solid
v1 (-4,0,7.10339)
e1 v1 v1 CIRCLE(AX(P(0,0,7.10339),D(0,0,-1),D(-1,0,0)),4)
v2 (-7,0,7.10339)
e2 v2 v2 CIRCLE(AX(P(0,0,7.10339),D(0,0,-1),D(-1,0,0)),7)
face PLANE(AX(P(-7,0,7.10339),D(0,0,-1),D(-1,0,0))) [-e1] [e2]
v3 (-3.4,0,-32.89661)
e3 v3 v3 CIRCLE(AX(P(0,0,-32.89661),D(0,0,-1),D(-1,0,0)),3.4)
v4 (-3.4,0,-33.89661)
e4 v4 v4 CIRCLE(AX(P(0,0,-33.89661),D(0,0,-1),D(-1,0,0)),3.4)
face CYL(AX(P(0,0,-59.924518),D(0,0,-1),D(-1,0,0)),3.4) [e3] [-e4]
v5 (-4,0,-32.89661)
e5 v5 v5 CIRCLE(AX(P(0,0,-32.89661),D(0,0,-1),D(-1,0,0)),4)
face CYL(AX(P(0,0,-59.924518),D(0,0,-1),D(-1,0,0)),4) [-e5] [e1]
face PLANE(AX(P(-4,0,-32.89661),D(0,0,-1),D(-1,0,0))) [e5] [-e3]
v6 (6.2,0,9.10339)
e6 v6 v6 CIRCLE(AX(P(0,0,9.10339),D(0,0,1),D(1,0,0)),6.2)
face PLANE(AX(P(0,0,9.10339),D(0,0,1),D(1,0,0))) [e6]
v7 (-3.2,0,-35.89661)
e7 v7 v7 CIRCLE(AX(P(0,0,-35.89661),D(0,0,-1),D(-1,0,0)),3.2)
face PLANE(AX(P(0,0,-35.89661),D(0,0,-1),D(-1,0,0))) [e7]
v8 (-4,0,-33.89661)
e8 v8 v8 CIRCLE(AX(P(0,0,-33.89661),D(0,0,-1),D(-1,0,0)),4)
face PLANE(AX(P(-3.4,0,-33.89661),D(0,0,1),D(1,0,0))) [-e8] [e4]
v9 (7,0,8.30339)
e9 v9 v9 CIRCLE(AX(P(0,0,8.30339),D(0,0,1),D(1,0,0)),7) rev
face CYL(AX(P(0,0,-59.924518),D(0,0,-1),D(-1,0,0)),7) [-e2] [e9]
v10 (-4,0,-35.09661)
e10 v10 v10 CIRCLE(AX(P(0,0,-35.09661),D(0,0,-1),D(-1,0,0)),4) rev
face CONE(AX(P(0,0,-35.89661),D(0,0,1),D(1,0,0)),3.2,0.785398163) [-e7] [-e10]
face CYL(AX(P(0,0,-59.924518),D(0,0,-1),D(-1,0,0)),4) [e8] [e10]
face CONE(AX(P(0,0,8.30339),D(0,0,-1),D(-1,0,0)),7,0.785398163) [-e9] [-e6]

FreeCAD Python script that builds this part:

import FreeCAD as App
import Part
import Sketcher

V = App.Vector


def edges_at(feature, points):
    """Names of the edges that pass closest to the given points."""
    edges = feature.Shape.Edges
    near = lambda p: min(range(len(edges)), key=lambda i: edges[i].distToShape(Part.Vertex(*p))[0])
    return sorted({f"Edge{near(p) + 1}" for p in points})


def add_polygon(sketch, points):
    """Adds a closed chain of lines whose ends are joined by coincident constraints."""
    first, n = sketch.GeometryCount, len(points)
    for a, b in zip(points, points[1:] + points[:1]):
        sketch.addGeometry(Part.LineSegment(App.Vector(*a, 0), App.Vector(*b, 0)), False)
    for i in range(n):
        sketch.addConstraint(Sketcher.Constraint("Coincident", first + i, 2, first + (i + 1) % n, 1))

doc = App.newDocument("Part")
body = doc.addObject("PartDesign::Body", "Body")

# Sketch on XZ plane
sketch1 = doc.addObject("Sketcher::SketchObject", "Sketch")
body.addObject(sketch1)
sketch1.AttachmentSupport = (doc.XZ_Plane, [""])
sketch1.MapMode = "FlatFace"
add_polygon(sketch1, [(-7, 9.1), (0, 9.1), (0, -35.9), (-4, -35.9), (-4, -33.9), (-3.4, -33.9), (-3.4, -32.9), (-4, -32.9), (-4, 7.1), (-7, 7.1)])  # lines 0-9
sketch1.addConstraint(Sketcher.Constraint("Horizontal", 0))
sketch1.addConstraint(Sketcher.Constraint("Vertical", 1))
sketch1.addConstraint(Sketcher.Constraint("Horizontal", 2))
sketch1.addConstraint(Sketcher.Constraint("Vertical", 3))
sketch1.addConstraint(Sketcher.Constraint("Horizontal", 4))
sketch1.addConstraint(Sketcher.Constraint("Vertical", 5))
sketch1.addConstraint(Sketcher.Constraint("Horizontal", 6))
sketch1.addConstraint(Sketcher.Constraint("Vertical", 7))
sketch1.addConstraint(Sketcher.Constraint("Horizontal", 8))
sketch1.addConstraint(Sketcher.Constraint("Vertical", 9))
sketch1.addConstraint(Sketcher.Constraint("PointOnObject", 0, 2, -2))
sketch1.addConstraint(Sketcher.Constraint("Vertical", 3, 2, 6, 2))
sketch1.addConstraint(Sketcher.Constraint("Equal", 3, 9))
sketch1.addConstraint(Sketcher.Constraint("DistanceX", 0, 1, 0, 2, 7.0))
sketch1.addConstraint(Sketcher.Constraint("DistanceX", 2, 2, 2, 1, 4.0))
sketch1.addConstraint(Sketcher.Constraint("DistanceY", 1, 2, 1, 1, 45.0))
sketch1.addConstraint(Sketcher.Constraint("DistanceY", 3, 1, 3, 2, 2.0))
sketch1.addConstraint(Sketcher.Constraint("DistanceY", 5, 1, 5, 2, 1.0))
sketch1.addConstraint(Sketcher.Constraint("DistanceX", 4, 1, 4, 2, 0.6))
sketch1.addConstraint(Sketcher.Constraint("DistanceY", -1, 1, 0, 2, 9.10339))
revolution = doc.addObject("PartDesign::Revolution", "Revolution")
body.addObject(revolution)
revolution.Profile = sketch1
revolution.ReferenceAxis = (sketch1, ["V_Axis"])
revolution.Angle = 360
doc.recompute()

chamfer = doc.addObject("PartDesign::Chamfer", "Chamfer")
body.addObject(chamfer)
chamfer.Base = (revolution, edges_at(revolution, [(4, 0, -35.897), (7, 0, 9.103)]))
chamfer.Size = 0.8

doc.recompute()
